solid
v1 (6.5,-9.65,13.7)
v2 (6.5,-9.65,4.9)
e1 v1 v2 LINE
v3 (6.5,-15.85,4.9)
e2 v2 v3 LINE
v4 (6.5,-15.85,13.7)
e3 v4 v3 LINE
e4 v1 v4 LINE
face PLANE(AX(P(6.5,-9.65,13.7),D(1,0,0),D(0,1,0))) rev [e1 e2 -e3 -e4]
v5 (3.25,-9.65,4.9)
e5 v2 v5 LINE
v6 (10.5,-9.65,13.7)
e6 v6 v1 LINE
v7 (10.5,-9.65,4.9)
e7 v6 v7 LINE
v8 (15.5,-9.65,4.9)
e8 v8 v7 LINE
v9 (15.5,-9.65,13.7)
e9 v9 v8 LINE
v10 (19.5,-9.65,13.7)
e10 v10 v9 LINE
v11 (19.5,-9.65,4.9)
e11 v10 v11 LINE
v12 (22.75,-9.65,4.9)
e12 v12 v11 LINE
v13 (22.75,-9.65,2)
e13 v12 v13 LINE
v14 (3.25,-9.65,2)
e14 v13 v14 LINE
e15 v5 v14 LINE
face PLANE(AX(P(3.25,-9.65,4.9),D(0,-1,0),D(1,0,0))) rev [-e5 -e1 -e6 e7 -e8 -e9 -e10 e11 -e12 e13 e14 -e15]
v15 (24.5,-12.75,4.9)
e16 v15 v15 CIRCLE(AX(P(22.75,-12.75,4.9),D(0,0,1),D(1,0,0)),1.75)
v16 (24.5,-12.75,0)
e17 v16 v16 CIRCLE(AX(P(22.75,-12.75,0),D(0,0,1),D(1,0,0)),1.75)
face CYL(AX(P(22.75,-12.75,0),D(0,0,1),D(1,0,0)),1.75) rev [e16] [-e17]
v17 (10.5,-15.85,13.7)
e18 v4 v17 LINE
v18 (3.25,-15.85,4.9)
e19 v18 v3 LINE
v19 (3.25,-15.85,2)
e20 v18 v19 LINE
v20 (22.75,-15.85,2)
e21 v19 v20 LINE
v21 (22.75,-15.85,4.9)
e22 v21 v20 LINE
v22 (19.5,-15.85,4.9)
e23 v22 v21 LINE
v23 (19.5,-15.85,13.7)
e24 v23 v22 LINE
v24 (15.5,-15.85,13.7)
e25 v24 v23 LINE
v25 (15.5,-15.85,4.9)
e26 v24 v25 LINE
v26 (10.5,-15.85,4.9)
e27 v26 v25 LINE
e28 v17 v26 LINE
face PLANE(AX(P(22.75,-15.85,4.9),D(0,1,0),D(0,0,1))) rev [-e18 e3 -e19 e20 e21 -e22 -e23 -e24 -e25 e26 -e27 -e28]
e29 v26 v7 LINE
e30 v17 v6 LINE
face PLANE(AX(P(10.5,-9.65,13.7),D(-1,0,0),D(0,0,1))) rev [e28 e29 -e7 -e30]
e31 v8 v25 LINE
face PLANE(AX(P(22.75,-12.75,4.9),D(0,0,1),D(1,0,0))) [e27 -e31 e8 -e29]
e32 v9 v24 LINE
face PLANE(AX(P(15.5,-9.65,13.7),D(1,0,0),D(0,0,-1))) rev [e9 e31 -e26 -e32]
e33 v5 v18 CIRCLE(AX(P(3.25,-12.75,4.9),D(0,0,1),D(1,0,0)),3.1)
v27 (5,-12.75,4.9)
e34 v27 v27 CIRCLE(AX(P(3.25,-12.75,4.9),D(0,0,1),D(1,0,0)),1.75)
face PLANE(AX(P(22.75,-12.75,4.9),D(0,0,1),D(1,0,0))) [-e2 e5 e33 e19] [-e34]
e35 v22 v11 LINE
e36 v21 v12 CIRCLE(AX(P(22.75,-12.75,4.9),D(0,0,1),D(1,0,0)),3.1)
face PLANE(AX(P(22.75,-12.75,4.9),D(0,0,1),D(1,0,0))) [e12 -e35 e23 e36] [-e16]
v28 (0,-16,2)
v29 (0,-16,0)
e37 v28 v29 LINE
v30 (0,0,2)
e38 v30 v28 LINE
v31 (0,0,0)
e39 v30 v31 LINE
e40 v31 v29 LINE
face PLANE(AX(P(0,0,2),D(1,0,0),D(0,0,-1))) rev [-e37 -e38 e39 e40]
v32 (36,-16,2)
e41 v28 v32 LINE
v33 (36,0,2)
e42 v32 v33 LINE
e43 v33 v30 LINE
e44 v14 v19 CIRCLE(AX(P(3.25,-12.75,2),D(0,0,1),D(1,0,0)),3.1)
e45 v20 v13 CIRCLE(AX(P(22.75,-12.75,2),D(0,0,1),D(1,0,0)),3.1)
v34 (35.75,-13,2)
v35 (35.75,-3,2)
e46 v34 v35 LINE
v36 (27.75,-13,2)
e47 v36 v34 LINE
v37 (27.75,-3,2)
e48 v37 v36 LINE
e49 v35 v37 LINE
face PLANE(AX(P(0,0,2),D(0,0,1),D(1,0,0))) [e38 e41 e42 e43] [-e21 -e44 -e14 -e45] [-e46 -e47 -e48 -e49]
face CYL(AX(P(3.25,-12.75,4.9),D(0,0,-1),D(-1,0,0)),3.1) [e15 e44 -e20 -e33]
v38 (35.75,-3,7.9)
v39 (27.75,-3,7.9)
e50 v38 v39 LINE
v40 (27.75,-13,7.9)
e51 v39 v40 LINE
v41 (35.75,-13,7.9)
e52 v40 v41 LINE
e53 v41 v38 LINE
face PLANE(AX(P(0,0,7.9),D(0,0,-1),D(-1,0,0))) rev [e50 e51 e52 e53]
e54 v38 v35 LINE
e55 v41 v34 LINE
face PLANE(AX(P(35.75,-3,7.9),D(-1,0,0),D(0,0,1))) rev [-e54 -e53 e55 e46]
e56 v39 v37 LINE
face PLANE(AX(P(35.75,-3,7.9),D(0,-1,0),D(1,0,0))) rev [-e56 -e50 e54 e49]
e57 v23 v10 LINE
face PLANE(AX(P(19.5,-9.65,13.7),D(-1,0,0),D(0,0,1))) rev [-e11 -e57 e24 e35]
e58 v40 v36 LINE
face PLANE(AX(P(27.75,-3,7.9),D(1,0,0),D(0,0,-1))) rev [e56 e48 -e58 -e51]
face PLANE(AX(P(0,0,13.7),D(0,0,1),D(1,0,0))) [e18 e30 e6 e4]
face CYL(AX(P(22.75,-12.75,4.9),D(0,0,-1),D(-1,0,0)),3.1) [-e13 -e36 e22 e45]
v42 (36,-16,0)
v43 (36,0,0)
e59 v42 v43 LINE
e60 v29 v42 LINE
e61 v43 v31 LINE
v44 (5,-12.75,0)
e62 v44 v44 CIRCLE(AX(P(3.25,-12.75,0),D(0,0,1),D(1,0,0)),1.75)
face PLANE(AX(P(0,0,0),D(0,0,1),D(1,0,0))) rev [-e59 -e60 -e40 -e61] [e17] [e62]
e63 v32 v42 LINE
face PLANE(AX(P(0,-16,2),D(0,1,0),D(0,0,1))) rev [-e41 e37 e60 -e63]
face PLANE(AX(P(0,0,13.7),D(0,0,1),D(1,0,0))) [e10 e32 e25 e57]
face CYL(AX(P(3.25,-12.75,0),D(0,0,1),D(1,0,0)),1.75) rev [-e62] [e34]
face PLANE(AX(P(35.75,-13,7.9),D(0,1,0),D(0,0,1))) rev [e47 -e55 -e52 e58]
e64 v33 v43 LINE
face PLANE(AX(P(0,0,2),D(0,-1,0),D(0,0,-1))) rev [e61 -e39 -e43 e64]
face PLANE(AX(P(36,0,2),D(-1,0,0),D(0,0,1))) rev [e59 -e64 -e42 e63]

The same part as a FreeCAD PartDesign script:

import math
import FreeCAD as App
import Part
import Sketcher

doc = App.newDocument("Part")
body = doc.addObject("PartDesign::Body", "Body")

# Sketch on XY plane
sketch1 = body.newObject("Sketcher::SketchObject", "Sketch")
sketch1.AttachmentSupport = (doc.getObject("XY_Plane"), [""])
sketch1.MapMode = "FlatFace"
sketch1.addGeometry([
    Part.LineSegment(App.Vector(0, 0, 0), App.Vector(0, -16, 0)),
    Part.LineSegment(App.Vector(0, -16, 0), App.Vector(36, -16, 0)),
    Part.LineSegment(App.Vector(36, -16, 0), App.Vector(36, 0, 0)),
    Part.LineSegment(App.Vector(36, 0, 0), App.Vector(0, 0, 0)),
], False)
sketch1.addConstraint([
    Sketcher.Constraint("Coincident", 0, 2, 1, 1),
    Sketcher.Constraint("Coincident", 1, 2, 2, 1),
    Sketcher.Constraint("Coincident", 2, 2, 3, 1),
    Sketcher.Constraint("Coincident", 3, 2, 0, 1),
    Sketcher.Constraint("Vertical", 0),
    Sketcher.Constraint("Horizontal", 1),
    Sketcher.Constraint("Vertical", 2),
    Sketcher.Constraint("Horizontal", 3),
    Sketcher.Constraint("Coincident", 3, 2, -1, 1),
    Sketcher.Constraint("DistanceX", 1, 1, 1, 2, 36.0),
    Sketcher.Constraint("DistanceY", 0, 2, 0, 1, 16.0),
])
pad1 = body.newObject("PartDesign::Pad", "Pad")
pad1.Profile = sketch1
pad1.Length = 2

# Sketch on XY plane
sketch2 = body.newObject("Sketcher::SketchObject", "Sketch001")
sketch2.AttachmentSupport = (doc.getObject("XY_Plane"), [""])
sketch2.MapMode = "FlatFace"
sketch2.AttachmentOffset = App.Placement(App.Vector(0, 0, 2), App.Rotation())
sketch2.addGeometry([
    Part.LineSegment(App.Vector(22.8, -9.7, 0), App.Vector(3.2, -9.7, 0)),
    Part.ArcOfCircle(Part.Circle(App.Vector(3.2, -12.8, 0), App.Vector(0, 0, 1), 3.1), math.radians(90), math.radians(270)),
    Part.LineSegment(App.Vector(3.2, -15.8, 0), App.Vector(22.8, -15.8, 0)),
    Part.ArcOfCircle(Part.Circle(App.Vector(22.8, -12.8, 0), App.Vector(0, 0, 1), 3.1), math.radians(-90), math.radians(90)),
], False)
sketch2.addConstraint([
    Sketcher.Constraint("Tangent", 0, 2, 1, 1),
    Sketcher.Constraint("Tangent", 1, 2, 2, 1),
    Sketcher.Constraint("Tangent", 2, 2, 3, 1),
    Sketcher.Constraint("Tangent", 3, 2, 0, 1),
    Sketcher.Constraint("Horizontal", 0),
    Sketcher.Constraint("Horizontal", 2),
    Sketcher.Constraint("Radius", 1, 3.1),
    Sketcher.Constraint("DistanceX", 0, 2, 0, 1, 19.5),
    Sketcher.Constraint("DistanceX", -1, 1, 1, 3, 3.25),
    Sketcher.Constraint("DistanceY", 1, 3, -1, 1, 12.75),
])
pad2 = body.newObject("PartDesign::Pad", "Pad001")
pad2.Profile = sketch2
pad2.Length = 2.9

# Sketch on XY plane
sketch3 = body.newObject("Sketcher::SketchObject", "Sketch002")
sketch3.AttachmentSupport = (doc.getObject("XY_Plane"), [""])
sketch3.MapMode = "FlatFace"
sketch3.AttachmentOffset = App.Placement(App.Vector(0, 0, 4.9), App.Rotation())
sketch3.addGeometry([
    Part.LineSegment(App.Vector(6.5, -9.7, 0), App.Vector(6.5, -15.8, 0)),  # 0
    Part.LineSegment(App.Vector(6.5, -15.8, 0), App.Vector(10.5, -15.8, 0)),  # 1
    Part.LineSegment(App.Vector(10.5, -15.8, 0), App.Vector(10.5, -9.7, 0)),  # 2
    Part.LineSegment(App.Vector(10.5, -9.7, 0), App.Vector(6.5, -9.7, 0)),  # 3
    Part.LineSegment(App.Vector(15.5, -9.7, 0), App.Vector(15.5, -15.8, 0)),  # 4
    Part.LineSegment(App.Vector(15.5, -15.8, 0), App.Vector(19.5, -15.8, 0)),  # 5
    Part.LineSegment(App.Vector(19.5, -15.8, 0), App.Vector(19.5, -9.7, 0)),  # 6
    Part.LineSegment(App.Vector(19.5, -9.7, 0), App.Vector(15.5, -9.7, 0)),  # 7
], False)
sketch3.addConstraint([
    Sketcher.Constraint("Coincident", 0, 2, 1, 1),
    Sketcher.Constraint("Coincident", 1, 2, 2, 1),
    Sketcher.Constraint("Coincident", 2, 2, 3, 1),
    Sketcher.Constraint("Coincident", 3, 2, 0, 1),
    Sketcher.Constraint("Coincident", 4, 2, 5, 1),
    Sketcher.Constraint("Coincident", 5, 2, 6, 1),
    Sketcher.Constraint("Coincident", 6, 2, 7, 1),
    Sketcher.Constraint("Coincident", 7, 2, 4, 1),
    Sketcher.Constraint("Vertical", 0),
    Sketcher.Constraint("Horizontal", 1),
    Sketcher.Constraint("Vertical", 2),
    Sketcher.Constraint("Horizontal", 3),
    Sketcher.Constraint("Vertical", 4),
    Sketcher.Constraint("Horizontal", 5),
    Sketcher.Constraint("Vertical", 6),
    Sketcher.Constraint("Horizontal", 7),
    Sketcher.Constraint("Horizontal", 1, 2, 4, 2),
    Sketcher.Constraint("Horizontal", 3, 2, 6, 2),
    Sketcher.Constraint("Equal", 3, 5),
    Sketcher.Constraint("DistanceX", 1, 1, 1, 2, 4.0),
    Sketcher.Constraint("DistanceY", 0, 2, 0, 1, 6.2),
    Sketcher.Constraint("DistanceX", 1, 2, 4, 2, 5.0),
    Sketcher.Constraint("DistanceX", -1, 1, 0, 2, 6.5),
    Sketcher.Constraint("DistanceY", 0, 2, -1, 1, 15.85),
])
pad3 = body.newObject("PartDesign::Pad", "Pad002")
pad3.Profile = sketch3
pad3.Length = 8.8

# Sketch on XY plane
sketch4 = body.newObject("Sketcher::SketchObject", "Sketch003")
sketch4.AttachmentSupport = (doc.getObject("XY_Plane"), [""])
sketch4.MapMode = "FlatFace"
sketch4.AttachmentOffset = App.Placement(App.Vector(0, 0, 2), App.Rotation())
sketch4.addGeometry([
    Part.LineSegment(App.Vector(28, -3, 0), App.Vector(28, -13, 0)),
    Part.LineSegment(App.Vector(28, -13, 0), App.Vector(36, -13, 0)),
    Part.LineSegment(App.Vector(36, -13, 0), App.Vector(36, -3, 0)),
    Part.LineSegment(App.Vector(36, -3, 0), App.Vector(28, -3, 0)),
], False)
sketch4.addConstraint([
    Sketcher.Constraint("Coincident", 0, 2, 1, 1),
    Sketcher.Constraint("Coincident", 1, 2, 2, 1),
    Sketcher.Constraint("Coincident", 2, 2, 3, 1),
    Sketcher.Constraint("Coincident", 3, 2, 0, 1),
    Sketcher.Constraint("Vertical", 0),
    Sketcher.Constraint("Horizontal", 1),
    Sketcher.Constraint("Vertical", 2),
    Sketcher.Constraint("Horizontal", 3),
    Sketcher.Constraint("DistanceX", 1, 1, 1, 2, 8.0),
    Sketcher.Constraint("DistanceY", 0, 2, 0, 1, 10.0),
    Sketcher.Constraint("DistanceY", 0, 2, -1, 1, 13.0),
    Sketcher.Constraint("DistanceX", -1, 1, 0, 2, 27.75),
])
pad4 = body.newObject("PartDesign::Pad", "Pad003")
pad4.Profile = sketch4
pad4.Length = 5.9

# Sketch on XY plane
sketch5 = body.newObject("Sketcher::SketchObject", "Sketch004")
sketch5.AttachmentSupport = (doc.getObject("XY_Plane"), [""])
sketch5.MapMode = "FlatFace"
sketch5.AttachmentOffset = App.Placement(App.Vector(0, 0, 4.9), App.Rotation())
sketch5.addGeometry([
    Part.Circle(App.Vector(3.2, -12.8, 0), App.Vector(0, 0, 1), 1.8),
    Part.Circle(App.Vector(22.8, -12.8, 0), App.Vector(0, 0, 1), 1.8),
], False)
sketch5.addConstraint([
    Sketcher.Constraint("Equal", 0, 1),
    Sketcher.Constraint("Horizontal", 0, 3, 1, 3),
    Sketcher.Constraint("Diameter", 0, 3.5),
    Sketcher.Constraint("DistanceX", 0, 3, 1, 3, 19.5),
    Sketcher.Constraint("DistanceX", -1, 1, 0, 3, 3.25),
    Sketcher.Constraint("DistanceY", 0, 3, -1, 1, 12.75),
])
pocket1 = body.newObject("PartDesign::Pocket", "Pocket")
pocket1.Profile = sketch5
pocket1.Type = "ThroughAll"

doc.recompute()
